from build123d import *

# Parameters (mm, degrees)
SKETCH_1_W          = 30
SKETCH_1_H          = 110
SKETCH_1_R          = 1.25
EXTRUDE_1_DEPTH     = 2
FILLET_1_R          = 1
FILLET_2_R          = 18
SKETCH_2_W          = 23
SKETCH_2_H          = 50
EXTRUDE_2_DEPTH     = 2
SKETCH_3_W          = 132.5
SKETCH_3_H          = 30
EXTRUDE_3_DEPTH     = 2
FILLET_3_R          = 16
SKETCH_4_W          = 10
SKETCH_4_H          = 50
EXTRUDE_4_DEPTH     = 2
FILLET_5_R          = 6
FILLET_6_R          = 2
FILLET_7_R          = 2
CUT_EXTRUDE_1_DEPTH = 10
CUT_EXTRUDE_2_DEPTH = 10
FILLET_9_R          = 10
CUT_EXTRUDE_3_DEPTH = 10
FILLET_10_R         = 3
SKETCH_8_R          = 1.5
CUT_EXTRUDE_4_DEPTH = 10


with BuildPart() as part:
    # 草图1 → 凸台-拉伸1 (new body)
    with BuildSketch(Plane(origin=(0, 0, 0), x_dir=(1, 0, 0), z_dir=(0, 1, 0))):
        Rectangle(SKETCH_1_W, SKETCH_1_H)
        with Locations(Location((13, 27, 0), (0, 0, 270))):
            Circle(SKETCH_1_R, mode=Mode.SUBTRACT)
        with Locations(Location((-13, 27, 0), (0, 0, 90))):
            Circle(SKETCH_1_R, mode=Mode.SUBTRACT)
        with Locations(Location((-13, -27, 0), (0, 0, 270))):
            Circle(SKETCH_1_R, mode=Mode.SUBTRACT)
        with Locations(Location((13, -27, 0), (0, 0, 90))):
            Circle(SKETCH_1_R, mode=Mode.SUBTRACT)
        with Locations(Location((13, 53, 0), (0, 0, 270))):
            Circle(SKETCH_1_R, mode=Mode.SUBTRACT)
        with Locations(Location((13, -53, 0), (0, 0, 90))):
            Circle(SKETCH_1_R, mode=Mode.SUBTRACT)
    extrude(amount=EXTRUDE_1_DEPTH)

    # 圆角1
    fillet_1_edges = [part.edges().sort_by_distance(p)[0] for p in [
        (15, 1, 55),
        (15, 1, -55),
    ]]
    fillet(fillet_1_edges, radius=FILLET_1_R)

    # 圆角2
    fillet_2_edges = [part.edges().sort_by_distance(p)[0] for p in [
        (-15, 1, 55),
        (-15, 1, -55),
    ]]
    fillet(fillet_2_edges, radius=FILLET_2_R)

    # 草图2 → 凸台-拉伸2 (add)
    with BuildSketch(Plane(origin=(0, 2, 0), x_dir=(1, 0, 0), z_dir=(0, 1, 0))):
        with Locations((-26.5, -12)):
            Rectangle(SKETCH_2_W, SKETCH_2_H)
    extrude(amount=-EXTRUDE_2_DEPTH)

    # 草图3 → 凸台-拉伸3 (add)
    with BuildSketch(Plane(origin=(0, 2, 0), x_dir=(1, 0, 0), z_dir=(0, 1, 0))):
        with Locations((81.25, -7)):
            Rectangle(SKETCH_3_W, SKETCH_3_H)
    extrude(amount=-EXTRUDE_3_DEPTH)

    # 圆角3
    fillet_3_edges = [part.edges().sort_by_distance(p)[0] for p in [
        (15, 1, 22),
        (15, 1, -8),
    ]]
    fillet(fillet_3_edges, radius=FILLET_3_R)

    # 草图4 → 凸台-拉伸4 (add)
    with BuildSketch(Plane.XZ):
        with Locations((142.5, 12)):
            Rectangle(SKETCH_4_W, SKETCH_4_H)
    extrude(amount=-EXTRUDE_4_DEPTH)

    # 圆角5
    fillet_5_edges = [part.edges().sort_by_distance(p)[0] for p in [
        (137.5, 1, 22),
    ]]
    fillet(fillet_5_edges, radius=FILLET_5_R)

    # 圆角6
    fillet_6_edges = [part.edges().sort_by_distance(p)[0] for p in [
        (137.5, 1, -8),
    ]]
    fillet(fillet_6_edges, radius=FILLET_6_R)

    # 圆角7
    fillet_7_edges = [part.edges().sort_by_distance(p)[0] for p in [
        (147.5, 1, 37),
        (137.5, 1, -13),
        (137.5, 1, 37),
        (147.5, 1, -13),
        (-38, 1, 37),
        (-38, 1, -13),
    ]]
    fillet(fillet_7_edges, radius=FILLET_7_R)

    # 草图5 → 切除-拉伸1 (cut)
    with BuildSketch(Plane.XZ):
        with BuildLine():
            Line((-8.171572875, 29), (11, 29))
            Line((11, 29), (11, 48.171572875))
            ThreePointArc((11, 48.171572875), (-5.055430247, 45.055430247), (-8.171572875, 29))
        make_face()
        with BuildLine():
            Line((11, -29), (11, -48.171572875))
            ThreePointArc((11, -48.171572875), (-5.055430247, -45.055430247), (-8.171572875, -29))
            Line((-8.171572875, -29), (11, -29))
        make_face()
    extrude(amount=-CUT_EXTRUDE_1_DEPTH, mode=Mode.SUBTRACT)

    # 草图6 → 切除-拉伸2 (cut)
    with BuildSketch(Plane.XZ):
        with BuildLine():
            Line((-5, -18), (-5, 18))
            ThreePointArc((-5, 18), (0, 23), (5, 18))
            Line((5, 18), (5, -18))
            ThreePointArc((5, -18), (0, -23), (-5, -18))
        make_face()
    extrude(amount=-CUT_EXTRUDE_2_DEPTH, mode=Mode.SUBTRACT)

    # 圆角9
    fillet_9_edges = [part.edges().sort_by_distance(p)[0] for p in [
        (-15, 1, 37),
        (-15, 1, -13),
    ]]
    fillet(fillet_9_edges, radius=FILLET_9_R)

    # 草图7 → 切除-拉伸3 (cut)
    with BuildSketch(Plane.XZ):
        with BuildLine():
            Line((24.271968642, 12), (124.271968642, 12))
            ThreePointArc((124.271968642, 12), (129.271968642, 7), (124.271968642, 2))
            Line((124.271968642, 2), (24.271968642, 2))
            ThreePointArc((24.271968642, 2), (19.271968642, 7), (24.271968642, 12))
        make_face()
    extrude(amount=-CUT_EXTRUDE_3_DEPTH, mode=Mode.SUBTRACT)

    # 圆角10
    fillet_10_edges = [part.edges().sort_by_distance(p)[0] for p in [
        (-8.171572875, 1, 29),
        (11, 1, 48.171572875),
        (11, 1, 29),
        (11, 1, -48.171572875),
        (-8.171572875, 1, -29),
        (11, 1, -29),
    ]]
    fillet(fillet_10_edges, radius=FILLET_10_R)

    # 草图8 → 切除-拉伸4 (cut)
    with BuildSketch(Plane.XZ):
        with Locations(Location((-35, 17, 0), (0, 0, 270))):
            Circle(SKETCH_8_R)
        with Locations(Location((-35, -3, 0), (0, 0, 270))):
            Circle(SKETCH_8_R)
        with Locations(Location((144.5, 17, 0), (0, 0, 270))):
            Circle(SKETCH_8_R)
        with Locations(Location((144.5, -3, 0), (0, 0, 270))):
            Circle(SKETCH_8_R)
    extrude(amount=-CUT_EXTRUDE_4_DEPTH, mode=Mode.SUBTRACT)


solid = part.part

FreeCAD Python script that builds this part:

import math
import FreeCAD as App
import Part
import Sketcher
from FreeCAD import Vector
Q = App.Units.Quantity


def edges_at(feature, points):
    """Names of the edges that pass closest to the given points."""
    edges = feature.Shape.Edges
    near = lambda p: min(range(len(edges)), key=lambda i: edges[i].distToShape(Part.Vertex(*p))[0])
    return sorted({f"Edge{near(p) + 1}" for p in points})


def add_polygon(sketch, points):
    """Adds a closed chain of lines whose ends are joined by coincident constraints."""
    first, n = sketch.GeometryCount, len(points)
    for a, b in zip(points, points[1:] + points[:1]):
        sketch.addGeometry(Part.LineSegment(App.Vector(*a, 0), App.Vector(*b, 0)), False)
    for i in range(n):
        sketch.addConstraint(Sketcher.Constraint("Coincident", first + i, 2, first + (i + 1) % n, 1))

doc = App.newDocument("Part")
body = doc.addObject("PartDesign::Body", "Body")

# Sketch on XZ plane
sketch1 = body.newObject("Sketcher::SketchObject", "Sketch")
sketch1.AttachmentSupport = (doc.getObject("XZ_Plane"), [""])
sketch1.MapMode = "FlatFace"
add_polygon(sketch1, [(-15, -55), (-15, 55), (15, 55), (15, -55)])  # lines 0-3
sketch1.addGeometry(Part.Circle(Vector(-13, 27, 0), Vector(0, 0, 1), 1.2), False)  # 4
sketch1.addGeometry(Part.Circle(Vector(13, 53, 0), Vector(0, 0, 1), 1.2), False)  # 5
sketch1.addGeometry(Part.Circle(Vector(13, 27, 0), Vector(0, 0, 1), 1.2), False)  # 6
sketch1.addGeometry(Part.Circle(Vector(-13, -27, 0), Vector(0, 0, 1), 1.2), False)  # 7
sketch1.addGeometry(Part.Circle(Vector(13, -27, 0), Vector(0, 0, 1), 1.2), False)  # 8
sketch1.addGeometry(Part.Circle(Vector(13, -53, 0), Vector(0, 0, 1), 1.2), False)  # 9
sketch1.addConstraint([
    Sketcher.Constraint("Vertical", 0),
    Sketcher.Constraint("Horizontal", 1),
    Sketcher.Constraint("Vertical", 2),
    Sketcher.Constraint("Horizontal", 3),
    Sketcher.Constraint("Equal", 4, 5),
    Sketcher.Constraint("Equal", 5, 6),
    Sketcher.Constraint("Equal", 6, 7),
    Sketcher.Constraint("Equal", 7, 8),
    Sketcher.Constraint("Equal", 8, 9),
    Sketcher.Constraint("Symmetric", 6, 3, 7, 3, -1, 1),
    Sketcher.Constraint("Symmetric", 4, 3, 8, 3, -1, 1),
    Sketcher.Constraint("Symmetric", 0, 2, 2, 2, -1, 1),
    Sketcher.Constraint("Symmetric", 4, 3, 6, 3, -2),
    Sketcher.Constraint("Symmetric", 5, 3, 9, 3, -1),
    Sketcher.Constraint("Vertical", 5, 3, 6, 3),
    Sketcher.Constraint("Diameter", 4, Q("2.5 mm")),
    Sketcher.Constraint("DistanceX", 1, 1, 1, 2, Q("30 mm")),
    Sketcher.Constraint("DistanceY", 0, 1, 0, 2, Q("110 mm")),
    Sketcher.Constraint("DistanceX", 4, 3, -1, 1, Q("13 mm")),
    Sketcher.Constraint("DistanceY", -1, 1, 4, 3, Q("27 mm")),
    Sketcher.Constraint("DistanceY", -1, 1, 5, 3, Q("53 mm")),
])
pad1 = body.newObject("PartDesign::Pad", "Pad")
pad1.Profile = sketch1
pad1.Length = 2
pad1.Reversed = True
doc.recompute()

fillet = body.newObject("PartDesign::Fillet", "Fillet")
fillet.Base = (pad1, edges_at(pad1, [(15, 1, 55), (15, 1, -55)]))
fillet.Radius = 1
doc.recompute()

fillet2 = body.newObject("PartDesign::Fillet", "Fillet001")
fillet2.Base = (fillet, edges_at(fillet, [(-15, 1, 55), (-15, 1, -55)]))
fillet2.Radius = 18

# Sketch on XZ plane
sketch2 = body.newObject("Sketcher::SketchObject", "Sketch001")
sketch2.AttachmentSupport = (doc.getObject("XZ_Plane"), [""])
sketch2.MapMode = "FlatFace"
sketch2.AttachmentOffset = App.Placement(Vector(0, 0, -2), App.Rotation())
add_polygon(sketch2, [(-38, -13), (-38, 37), (-15, 37), (-15, -13)])  # lines 0-3
sketch2.addConstraint([
    Sketcher.Constraint("Vertical", 0),
    Sketcher.Constraint("Horizontal", 1),
    Sketcher.Constraint("Vertical", 2),
    Sketcher.Constraint("Horizontal", 3),
    Sketcher.Constraint("DistanceX", 1, 1, 1, 2, Q("23 mm")),
    Sketcher.Constraint("DistanceY", 0, 1, 0, 2, Q("50 mm")),
    Sketcher.Constraint("DistanceX", 0, 2, -1, 1, Q("38 mm")),
    Sketcher.Constraint("DistanceY", -1, 1, 0, 2, Q("37 mm")),
])
pad2 = body.newObject("PartDesign::Pad", "Pad001")
pad2.Profile = sketch2
pad2.Length = 2

# Sketch on XZ plane
sketch3 = body.newObject("Sketcher::SketchObject", "Sketch002")
sketch3.AttachmentSupport = (doc.getObject("XZ_Plane"), [""])
sketch3.MapMode = "FlatFace"
sketch3.AttachmentOffset = App.Placement(Vector(0, 0, -2), App.Rotation())
add_polygon(sketch3, [(15, -8), (15, 22), (148, 22), (148, -8)])  # lines 0-3
sketch3.addConstraint([
    Sketcher.Constraint("Vertical", 0),
    Sketcher.Constraint("Horizontal", 1),
    Sketcher.Constraint("Vertical", 2),
    Sketcher.Constraint("Horizontal", 3),
    Sketcher.Constraint("DistanceY", 0, 1, 0, 2, Q("30 mm")),
    Sketcher.Constraint("DistanceX", 1, 1, 1, 2, Q("132.5 mm")),
    Sketcher.Constraint("DistanceX", -1, 1, 0, 2, Q("15 mm")),
    Sketcher.Constraint("DistanceY", -1, 1, 0, 2, Q("22 mm")),
])
pad3 = body.newObject("PartDesign::Pad", "Pad002")
pad3.Profile = sketch3
pad3.Length = 2
doc.recompute()

fillet3 = body.newObject("PartDesign::Fillet", "Fillet002")
fillet3.Base = (pad3, edges_at(pad3, [(15, 1, 22), (15, 1, -8)]))
fillet3.Radius = 16

# Sketch on XZ plane
sketch4 = body.newObject("Sketcher::SketchObject", "Sketch003")
sketch4.AttachmentSupport = (doc.getObject("XZ_Plane"), [""])
sketch4.MapMode = "FlatFace"
add_polygon(sketch4, [(138, 37), (138, -13), (148, -13), (148, 37)])  # lines 0-3
sketch4.addConstraint([
    Sketcher.Constraint("Vertical", 0),
    Sketcher.Constraint("Horizontal", 1),
    Sketcher.Constraint("Vertical", 2),
    Sketcher.Constraint("Horizontal", 3),
    Sketcher.Constraint("DistanceX", 1, 1, 1, 2, Q("10 mm")),
    Sketcher.Constraint("DistanceY", 0, 2, 0, 1, Q("50 mm")),
    Sketcher.Constraint("DistanceY", 0, 2, -1, 1, Q("13 mm")),
    Sketcher.Constraint("DistanceX", -1, 1, 0, 2, Q("137.5 mm")),
])
pad4 = body.newObject("PartDesign::Pad", "Pad003")
pad4.Profile = sketch4
pad4.Length = 2
pad4.Reversed = True
doc.recompute()

fillet4 = body.newObject("PartDesign::Fillet", "Fillet003")
fillet4.Base = (pad4, edges_at(pad4, [(137.5, 1, 22)]))
fillet4.Radius = 6
doc.recompute()

fillet5 = body.newObject("PartDesign::Fillet", "Fillet004")
fillet5.Base = (fillet4, edges_at(fillet4, [(137.5, 1, -8)]))
fillet5.Radius = 2
doc.recompute()

fillet6 = body.newObject("PartDesign::Fillet", "Fillet005")
fillet6.Base = (fillet5, edges_at(fillet5, [
    (147.5, 1, 37),
    (137.5, 1, -13),
    (137.5, 1, 37),
    (147.5, 1, -13),
    (-38, 1, 37),
    (-38, 1, -13),
]))
fillet6.Radius = 2

# Sketch on XZ plane
sketch5 = body.newObject("Sketcher::SketchObject", "Sketch004")
sketch5.AttachmentSupport = (doc.getObject("XZ_Plane"), [""])
sketch5.MapMode = "FlatFace"
sketch5.addGeometry([
    Part.LineSegment(Vector(-8, 29, 0), Vector(11, 29, 0)),  # 0
    Part.LineSegment(Vector(11, 29, 0), Vector(11, 48, 0)),  # 1
    Part.ArcOfCircle(Part.Circle(Vector(5, 35, 0), Vector(0, 0, 1), 15), math.radians(67), math.radians(203)),  # 2
    Part.LineSegment(Vector(11, -48, 0), Vector(11, -29, 0)),  # 3
    Part.LineSegment(Vector(11, -29, 0), Vector(-8, -29, 0)),  # 4
    Part.ArcOfCircle(Part.Circle(Vector(5, -35, 0), Vector(0, 0, 1), 15), math.radians(157), math.radians(293)),  # 5
], False)
sketch5.addConstraint([
    Sketcher.Constraint("Coincident", 0, 2, 1, 1),
    Sketcher.Constraint("Coincident", 1, 2, 2, 1),
    Sketcher.Constraint("Coincident", 2, 2, 0, 1),
    Sketcher.Constraint("Coincident", 3, 2, 4, 1),
    Sketcher.Constraint("Coincident", 4, 2, 5, 1),
    Sketcher.Constraint("Coincident", 5, 2, 3, 1),
    Sketcher.Constraint("Horizontal", 0),
    Sketcher.Constraint("Vertical", 1),
    Sketcher.Constraint("Vertical", 3),
    Sketcher.Constraint("Horizontal", 4),
    Sketcher.Constraint("Equal", 2, 5),
    Sketcher.Constraint("Symmetric", 2, 3, 5, 3, -1),
    Sketcher.Constraint("Symmetric", 0, 2, 3, 2, -1),
    Sketcher.Constraint("Equal", 4, 1),
    Sketcher.Constraint("DistanceX", -1, 1, 0, 2, Q("11 mm")),
    Sketcher.Constraint("DistanceY", -1, 1, 0, 2, Q("29 mm")),
    Sketcher.Constraint("Radius", 2, Q("14.617652 mm")),
    Sketcher.Constraint("DistanceX", 0, 1, 0, 2, Q("19.171573 mm")),
])
pocket1 = body.newObject("PartDesign::Pocket", "Pocket")
pocket1.Profile = sketch5
pocket1.Length = 10

# Sketch on XZ plane
sketch6 = body.newObject("Sketcher::SketchObject", "Sketch005")
sketch6.AttachmentSupport = (doc.getObject("XZ_Plane"), [""])
sketch6.MapMode = "FlatFace"
sketch6.addGeometry([
    Part.LineSegment(Vector(-5, 18, 0), Vector(-5, -18, 0)),
    Part.ArcOfCircle(Part.Circle(Vector(0, -18, 0), Vector(0, 0, 1), 5), math.radians(180), math.radians(360)),
    Part.LineSegment(Vector(5, -18, 0), Vector(5, 18, 0)),
    Part.ArcOfCircle(Part.Circle(Vector(0, 18, 0), Vector(0, 0, 1), 5), math.radians(0), math.radians(180)),
], False)
sketch6.addConstraint([
    Sketcher.Constraint("Tangent", 0, 2, 1, 1),
    Sketcher.Constraint("Tangent", 1, 2, 2, 1),
    Sketcher.Constraint("Tangent", 2, 2, 3, 1),
    Sketcher.Constraint("Tangent", 3, 2, 0, 1),
    Sketcher.Constraint("Vertical", 0),
    Sketcher.Constraint("Vertical", 2),
    Sketcher.Constraint("Symmetric", 1, 3, 3, 3, -1, 1),
    Sketcher.Constraint("Radius", 1, Q("5 mm")),
    Sketcher.Constraint("DistanceY", 0, 2, 0, 1, Q("36 mm")),
])
pocket2 = body.newObject("PartDesign::Pocket", "Pocket001")
pocket2.Profile = sketch6
pocket2.Length = 10
doc.recompute()

fillet7 = body.newObject("PartDesign::Fillet", "Fillet006")
fillet7.Base = (pocket2, edges_at(pocket2, [(-15, 1, 37), (-15, 1, -13)]))
fillet7.Radius = 10

# Sketch on XZ plane
sketch7 = body.newObject("Sketcher::SketchObject", "Sketch006")
sketch7.AttachmentSupport = (doc.getObject("XZ_Plane"), [""])
sketch7.MapMode = "FlatFace"
sketch7.addGeometry([
    Part.LineSegment(Vector(124, 12, 0), Vector(24, 12, 0)),
    Part.ArcOfCircle(Part.Circle(Vector(24, 7, 0), Vector(0, 0, 1), 5), math.radians(90), math.radians(270)),
    Part.LineSegment(Vector(24, 2, 0), Vector(124, 2, 0)),
    Part.ArcOfCircle(Part.Circle(Vector(124, 7, 0), Vector(0, 0, 1), 5), math.radians(-90), math.radians(90)),
], False)
sketch7.addConstraint([
    Sketcher.Constraint("Tangent", 0, 2, 1, 1),
    Sketcher.Constraint("Tangent", 1, 2, 2, 1),
    Sketcher.Constraint("Tangent", 2, 2, 3, 1),
    Sketcher.Constraint("Tangent", 3, 2, 0, 1),
    Sketcher.Constraint("Horizontal", 0),
    Sketcher.Constraint("Horizontal", 2),
    Sketcher.Constraint("Radius", 1, Q("5 mm")),
    Sketcher.Constraint("DistanceX", 0, 2, 0, 1, Q("100 mm")),
    Sketcher.Constraint("DistanceY", -1, 1, 1, 3, Q("7 mm")),
    Sketcher.Constraint("DistanceX", -1, 1, 1, 3, Q("24.271969 mm")),
])
pocket3 = body.newObject("PartDesign::Pocket", "Pocket002")
pocket3.Profile = sketch7
pocket3.Length = 10
doc.recompute()

fillet8 = body.newObject("PartDesign::Fillet", "Fillet007")
fillet8.Base = (pocket3, edges_at(pocket3, [
    (-8.172, 1, 29),
    (11, 1, 48.172),
    (11, 1, 29),
    (11, 1, -48.172),
    (-8.172, 1, -29),
    (11, 1, -29),
]))
fillet8.Radius = 3

# Sketch on XZ plane
sketch8 = body.newObject("Sketcher::SketchObject", "Sketch007")
sketch8.AttachmentSupport = (doc.getObject("XZ_Plane"), [""])
sketch8.MapMode = "FlatFace"
sketch8.addGeometry([
    Part.Circle(Vector(-35, 17, 0), Vector(0, 0, 1), 1.5),
    Part.Circle(Vector(-35, -3, 0), Vector(0, 0, 1), 1.5),
    Part.Circle(Vector(144.5, 17, 0), Vector(0, 0, 1), 1.5),
    Part.Circle(Vector(144.5, -3, 0), Vector(0, 0, 1), 1.5),
], False)
sketch8.addConstraint([
    Sketcher.Constraint("Equal", 0, 1),
    Sketcher.Constraint("Equal", 1, 2),
    Sketcher.Constraint("Equal", 2, 3),
    Sketcher.Constraint("Horizontal", 0, 3, 2, 3),
    Sketcher.Constraint("Horizontal", 1, 3, 3, 3),
    Sketcher.Constraint("Vertical", 0, 3, 1, 3),
    Sketcher.Constraint("Vertical", 2, 3, 3, 3),
    Sketcher.Constraint("Diameter", 0, Q("3 mm")),
    Sketcher.Constraint("DistanceX", 0, 3, -1, 1, Q("35 mm")),
    Sketcher.Constraint("DistanceY", -1, 1, 0, 3, Q("17 mm")),
    Sketcher.Constraint("DistanceY", 1, 3, -1, 1, Q("3 mm")),
    Sketcher.Constraint("DistanceX", -1, 1, 2, 3, Q("144.5 mm")),
])
pocket4 = body.newObject("PartDesign::Pocket", "Pocket003")
pocket4.Profile = sketch8
pocket4.Length = 10

doc.recompute()
